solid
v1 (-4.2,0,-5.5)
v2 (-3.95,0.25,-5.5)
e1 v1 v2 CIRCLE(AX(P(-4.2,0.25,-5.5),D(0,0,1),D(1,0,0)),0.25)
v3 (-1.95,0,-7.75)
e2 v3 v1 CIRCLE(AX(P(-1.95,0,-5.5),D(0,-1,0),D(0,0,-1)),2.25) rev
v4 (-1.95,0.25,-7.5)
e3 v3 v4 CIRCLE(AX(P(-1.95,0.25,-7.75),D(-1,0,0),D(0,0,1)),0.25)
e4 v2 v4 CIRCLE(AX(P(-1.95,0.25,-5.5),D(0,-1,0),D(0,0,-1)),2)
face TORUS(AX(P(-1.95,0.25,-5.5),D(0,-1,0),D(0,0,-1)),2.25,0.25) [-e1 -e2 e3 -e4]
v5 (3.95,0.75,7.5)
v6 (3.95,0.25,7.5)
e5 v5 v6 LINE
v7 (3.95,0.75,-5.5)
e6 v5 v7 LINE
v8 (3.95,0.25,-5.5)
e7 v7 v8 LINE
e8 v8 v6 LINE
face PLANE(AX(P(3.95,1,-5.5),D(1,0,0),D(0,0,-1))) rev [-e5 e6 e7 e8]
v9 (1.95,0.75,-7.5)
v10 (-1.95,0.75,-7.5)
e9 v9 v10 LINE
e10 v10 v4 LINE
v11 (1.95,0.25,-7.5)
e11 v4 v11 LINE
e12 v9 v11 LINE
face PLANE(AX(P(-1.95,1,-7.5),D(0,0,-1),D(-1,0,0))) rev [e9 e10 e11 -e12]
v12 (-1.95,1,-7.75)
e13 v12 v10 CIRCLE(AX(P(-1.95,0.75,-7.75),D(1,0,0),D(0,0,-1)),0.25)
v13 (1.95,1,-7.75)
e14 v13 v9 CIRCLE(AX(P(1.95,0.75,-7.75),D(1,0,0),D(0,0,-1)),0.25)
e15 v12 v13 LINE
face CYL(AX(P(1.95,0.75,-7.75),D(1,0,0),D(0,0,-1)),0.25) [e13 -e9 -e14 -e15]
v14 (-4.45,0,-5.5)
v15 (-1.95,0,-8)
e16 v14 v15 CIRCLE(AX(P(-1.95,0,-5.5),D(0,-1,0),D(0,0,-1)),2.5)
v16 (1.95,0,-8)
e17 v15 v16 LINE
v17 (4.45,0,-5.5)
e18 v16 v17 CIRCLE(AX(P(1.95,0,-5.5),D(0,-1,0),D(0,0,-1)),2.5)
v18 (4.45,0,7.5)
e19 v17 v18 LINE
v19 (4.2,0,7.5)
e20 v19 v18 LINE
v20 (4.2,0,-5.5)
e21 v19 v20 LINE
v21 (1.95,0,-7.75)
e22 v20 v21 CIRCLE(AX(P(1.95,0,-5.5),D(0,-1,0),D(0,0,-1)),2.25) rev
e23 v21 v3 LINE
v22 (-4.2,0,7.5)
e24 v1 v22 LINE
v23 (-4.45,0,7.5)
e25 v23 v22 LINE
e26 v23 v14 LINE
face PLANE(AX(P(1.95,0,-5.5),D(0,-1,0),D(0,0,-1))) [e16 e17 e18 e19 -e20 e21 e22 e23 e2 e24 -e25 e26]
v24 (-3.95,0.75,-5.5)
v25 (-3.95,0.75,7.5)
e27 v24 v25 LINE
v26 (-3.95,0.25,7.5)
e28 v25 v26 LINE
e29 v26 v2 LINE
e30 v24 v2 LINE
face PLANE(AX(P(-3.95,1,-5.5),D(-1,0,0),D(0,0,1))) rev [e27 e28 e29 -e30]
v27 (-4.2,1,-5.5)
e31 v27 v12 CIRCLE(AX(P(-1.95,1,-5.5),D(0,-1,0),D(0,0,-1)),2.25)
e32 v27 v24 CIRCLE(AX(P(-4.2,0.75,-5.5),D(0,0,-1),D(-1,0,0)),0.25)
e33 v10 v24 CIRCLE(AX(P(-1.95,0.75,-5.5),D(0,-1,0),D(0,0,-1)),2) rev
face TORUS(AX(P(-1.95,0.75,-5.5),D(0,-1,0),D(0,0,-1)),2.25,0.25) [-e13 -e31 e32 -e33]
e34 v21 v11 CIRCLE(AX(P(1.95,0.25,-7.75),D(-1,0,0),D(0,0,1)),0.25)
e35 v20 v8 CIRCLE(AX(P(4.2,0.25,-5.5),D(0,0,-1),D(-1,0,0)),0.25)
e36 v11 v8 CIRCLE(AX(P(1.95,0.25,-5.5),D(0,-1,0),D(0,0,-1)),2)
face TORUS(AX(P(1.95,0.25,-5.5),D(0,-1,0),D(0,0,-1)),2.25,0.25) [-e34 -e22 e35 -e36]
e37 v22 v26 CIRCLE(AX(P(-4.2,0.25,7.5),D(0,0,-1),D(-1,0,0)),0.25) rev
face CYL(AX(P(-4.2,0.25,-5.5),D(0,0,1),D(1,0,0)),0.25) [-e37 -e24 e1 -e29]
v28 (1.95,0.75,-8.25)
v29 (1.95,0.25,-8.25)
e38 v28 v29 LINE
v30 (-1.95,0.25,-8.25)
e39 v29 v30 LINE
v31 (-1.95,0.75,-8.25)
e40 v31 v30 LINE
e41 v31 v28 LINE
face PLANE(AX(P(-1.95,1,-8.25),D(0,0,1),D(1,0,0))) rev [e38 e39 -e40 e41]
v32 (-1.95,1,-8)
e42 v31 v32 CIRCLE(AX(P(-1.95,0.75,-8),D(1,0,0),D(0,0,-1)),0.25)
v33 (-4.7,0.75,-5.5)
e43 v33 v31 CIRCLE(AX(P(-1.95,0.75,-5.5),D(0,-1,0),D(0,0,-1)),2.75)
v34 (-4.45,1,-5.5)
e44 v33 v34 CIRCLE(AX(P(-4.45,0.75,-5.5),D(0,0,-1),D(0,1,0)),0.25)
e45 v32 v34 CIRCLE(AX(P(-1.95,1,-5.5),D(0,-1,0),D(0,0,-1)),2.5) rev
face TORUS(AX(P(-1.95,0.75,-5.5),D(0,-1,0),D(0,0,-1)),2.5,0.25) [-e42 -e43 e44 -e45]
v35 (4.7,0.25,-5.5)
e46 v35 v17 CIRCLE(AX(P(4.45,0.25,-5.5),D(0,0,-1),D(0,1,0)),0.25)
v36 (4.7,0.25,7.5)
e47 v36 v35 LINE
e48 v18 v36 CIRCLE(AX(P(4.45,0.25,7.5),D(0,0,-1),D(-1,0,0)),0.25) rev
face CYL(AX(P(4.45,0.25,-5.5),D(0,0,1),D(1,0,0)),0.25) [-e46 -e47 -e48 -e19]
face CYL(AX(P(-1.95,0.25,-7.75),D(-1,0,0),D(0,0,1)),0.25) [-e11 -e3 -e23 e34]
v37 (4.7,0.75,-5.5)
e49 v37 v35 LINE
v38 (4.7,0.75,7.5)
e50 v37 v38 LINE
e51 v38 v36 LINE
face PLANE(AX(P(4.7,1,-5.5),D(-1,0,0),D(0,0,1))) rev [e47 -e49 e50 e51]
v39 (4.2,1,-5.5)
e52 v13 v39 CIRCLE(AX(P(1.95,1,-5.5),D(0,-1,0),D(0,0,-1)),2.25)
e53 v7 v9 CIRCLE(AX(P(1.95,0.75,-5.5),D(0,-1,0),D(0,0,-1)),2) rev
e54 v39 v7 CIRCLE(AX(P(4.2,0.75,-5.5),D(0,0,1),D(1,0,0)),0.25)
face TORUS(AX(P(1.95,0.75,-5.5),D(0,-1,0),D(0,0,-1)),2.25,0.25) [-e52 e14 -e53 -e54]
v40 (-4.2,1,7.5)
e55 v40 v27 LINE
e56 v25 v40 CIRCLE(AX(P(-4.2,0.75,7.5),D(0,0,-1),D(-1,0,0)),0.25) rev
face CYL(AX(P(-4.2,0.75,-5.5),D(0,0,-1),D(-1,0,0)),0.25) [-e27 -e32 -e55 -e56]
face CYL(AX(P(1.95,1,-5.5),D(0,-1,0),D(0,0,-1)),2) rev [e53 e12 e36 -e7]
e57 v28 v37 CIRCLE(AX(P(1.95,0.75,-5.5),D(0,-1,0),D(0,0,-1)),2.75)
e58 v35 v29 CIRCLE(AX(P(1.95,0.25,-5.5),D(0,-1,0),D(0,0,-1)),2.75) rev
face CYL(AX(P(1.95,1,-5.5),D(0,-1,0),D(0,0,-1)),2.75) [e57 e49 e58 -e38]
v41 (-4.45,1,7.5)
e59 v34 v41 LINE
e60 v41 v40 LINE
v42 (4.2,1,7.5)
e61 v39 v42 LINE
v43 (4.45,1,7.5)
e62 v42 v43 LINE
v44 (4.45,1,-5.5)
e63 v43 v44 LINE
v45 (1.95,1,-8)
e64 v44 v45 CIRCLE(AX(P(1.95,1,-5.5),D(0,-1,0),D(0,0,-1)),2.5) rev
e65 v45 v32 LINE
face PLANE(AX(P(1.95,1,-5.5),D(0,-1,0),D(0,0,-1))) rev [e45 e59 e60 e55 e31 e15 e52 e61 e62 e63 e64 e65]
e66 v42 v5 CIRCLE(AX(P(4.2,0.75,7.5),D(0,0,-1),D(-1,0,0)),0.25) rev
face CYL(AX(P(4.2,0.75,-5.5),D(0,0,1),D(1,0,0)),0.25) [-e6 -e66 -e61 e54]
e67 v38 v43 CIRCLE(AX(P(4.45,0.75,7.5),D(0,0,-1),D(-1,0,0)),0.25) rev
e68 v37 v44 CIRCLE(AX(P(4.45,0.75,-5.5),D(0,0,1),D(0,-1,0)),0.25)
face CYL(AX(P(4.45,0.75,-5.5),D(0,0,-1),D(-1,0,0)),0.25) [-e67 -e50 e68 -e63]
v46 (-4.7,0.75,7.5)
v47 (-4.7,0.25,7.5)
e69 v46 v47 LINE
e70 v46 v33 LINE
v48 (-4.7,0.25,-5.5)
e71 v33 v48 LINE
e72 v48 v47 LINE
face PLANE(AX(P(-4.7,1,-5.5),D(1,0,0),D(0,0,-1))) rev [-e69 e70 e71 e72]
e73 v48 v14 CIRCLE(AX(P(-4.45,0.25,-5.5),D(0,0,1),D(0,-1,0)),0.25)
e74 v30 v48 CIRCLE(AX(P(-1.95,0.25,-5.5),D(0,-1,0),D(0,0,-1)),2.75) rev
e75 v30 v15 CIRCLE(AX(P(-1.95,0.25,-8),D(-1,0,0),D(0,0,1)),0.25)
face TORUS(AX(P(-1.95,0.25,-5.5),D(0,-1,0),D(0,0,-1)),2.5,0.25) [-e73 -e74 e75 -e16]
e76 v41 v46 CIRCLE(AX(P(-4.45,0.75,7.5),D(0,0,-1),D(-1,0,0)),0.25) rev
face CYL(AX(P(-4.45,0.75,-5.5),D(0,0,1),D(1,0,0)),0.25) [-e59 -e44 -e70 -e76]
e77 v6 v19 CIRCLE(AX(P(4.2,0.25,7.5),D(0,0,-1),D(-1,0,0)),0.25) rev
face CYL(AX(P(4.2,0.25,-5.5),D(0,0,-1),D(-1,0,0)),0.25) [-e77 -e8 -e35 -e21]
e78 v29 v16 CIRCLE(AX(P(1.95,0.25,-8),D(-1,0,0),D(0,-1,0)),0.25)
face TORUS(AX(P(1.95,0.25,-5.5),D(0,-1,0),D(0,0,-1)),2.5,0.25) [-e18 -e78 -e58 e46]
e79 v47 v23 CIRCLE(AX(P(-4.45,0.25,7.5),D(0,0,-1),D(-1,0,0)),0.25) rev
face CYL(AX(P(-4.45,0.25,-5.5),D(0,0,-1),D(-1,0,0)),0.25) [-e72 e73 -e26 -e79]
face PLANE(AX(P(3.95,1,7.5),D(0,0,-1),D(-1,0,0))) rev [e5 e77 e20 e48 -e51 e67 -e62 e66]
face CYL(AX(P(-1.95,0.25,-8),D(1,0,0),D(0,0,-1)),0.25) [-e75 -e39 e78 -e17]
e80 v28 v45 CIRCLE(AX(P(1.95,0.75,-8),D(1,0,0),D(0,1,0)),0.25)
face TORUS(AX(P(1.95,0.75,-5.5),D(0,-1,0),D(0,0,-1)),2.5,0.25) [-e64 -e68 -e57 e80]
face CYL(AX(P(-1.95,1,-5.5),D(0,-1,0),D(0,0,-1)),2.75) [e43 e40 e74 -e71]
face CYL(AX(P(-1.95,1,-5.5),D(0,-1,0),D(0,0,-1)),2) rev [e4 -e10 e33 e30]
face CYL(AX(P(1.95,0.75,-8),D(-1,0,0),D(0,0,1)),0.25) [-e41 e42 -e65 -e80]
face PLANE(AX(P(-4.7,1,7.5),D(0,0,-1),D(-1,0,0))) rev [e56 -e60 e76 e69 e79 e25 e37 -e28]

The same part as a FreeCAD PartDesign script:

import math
import FreeCAD as App
import Part
import Sketcher
from FreeCAD import Vector


def edges_at(feature, points):
    """Names of the edges that pass closest to the given points."""
    edges = feature.Shape.Edges
    near = lambda p: min(range(len(edges)), key=lambda i: edges[i].distToShape(Part.Vertex(*p))[0])
    return sorted({f"Edge{near(p) + 1}" for p in points})

doc = App.newDocument("Part")
body = doc.addObject("PartDesign::Body", "Body")

sketch1 = body.newObject("Sketcher::SketchObject", "Sketch")
sketch1.AttachmentSupport = (doc.getObject("XZ_Plane"), [""])
sketch1.MapMode = "FlatFace"
sketch1.addGeometry([
    Part.LineSegment(Vector(-4.7, -5.5, 0), Vector(-4.7, 7.5, 0)),
    Part.LineSegment(Vector(-4.7, 7.5, 0), Vector(-4, 7.5, 0)),
    Part.LineSegment(Vector(-4, 7.5, 0), Vector(-4, -5.5, 0)),
    Part.ArcOfCircle(Part.Circle(Vector(-1.9, -5.5, 0), Vector(0, 0, 1), 2), math.radians(-180), math.radians(-90)),
    Part.LineSegment(Vector(-1.9, -7.5, 0), Vector(1.9, -7.5, 0)),
    Part.ArcOfCircle(Part.Circle(Vector(1.9, -5.5, 0), Vector(0, 0, 1), 2), math.radians(-90), math.radians(0)),
    Part.LineSegment(Vector(4, -5.5, 0), Vector(4, 7.5, 0)),
    Part.LineSegment(Vector(4, 7.5, 0), Vector(4.7, 7.5, 0)),
    Part.LineSegment(Vector(4.7, 7.5, 0), Vector(4.7, -5.5, 0)),
    Part.ArcOfCircle(Part.Circle(Vector(1.9, -5.5, 0), Vector(0, 0, 1), 2.8), math.radians(-90), math.radians(0)),
    Part.LineSegment(Vector(1.9, -8.2, 0), Vector(-1.9, -8.2, 0)),
    Part.ArcOfCircle(Part.Circle(Vector(-1.9, -5.5, 0), Vector(0, 0, 1), 2.8), math.radians(-180), math.radians(-90)),
], False)
sketch1.addConstraint([
    Sketcher.Constraint("Coincident", 0, 2, 1, 1),
    Sketcher.Constraint("Coincident", 1, 2, 2, 1),
    Sketcher.Constraint("Tangent", 2, 2, 3, 1),
    Sketcher.Constraint("Tangent", 3, 2, 4, 1),
    Sketcher.Constraint("Tangent", 4, 2, 5, 1),
    Sketcher.Constraint("Tangent", 5, 2, 6, 1),
    Sketcher.Constraint("Coincident", 6, 2, 7, 1),
    Sketcher.Constraint("Coincident", 7, 2, 8, 1),
    Sketcher.Constraint("Tangent", 8, 2, 9, 2),
    Sketcher.Constraint("Tangent", 9, 1, 10, 1),
    Sketcher.Constraint("Tangent", 10, 2, 11, 2),
    Sketcher.Constraint("Tangent", 11, 1, 0, 1),
    Sketcher.Constraint("Vertical", 0),
    Sketcher.Constraint("Horizontal", 1),
    Sketcher.Constraint("Vertical", 2),
    Sketcher.Constraint("Horizontal", 4),
    Sketcher.Constraint("Vertical", 6),
    Sketcher.Constraint("Horizontal", 7),
    Sketcher.Constraint("Vertical", 8),
    Sketcher.Constraint("Horizontal", 10),
    Sketcher.Constraint("Coincident", 9, 3, 5, 3),
    Sketcher.Constraint("Coincident", 11, 3, 3, 3),
    Sketcher.Constraint("Equal", 3, 5),
    Sketcher.Constraint("Symmetric", 1, 2, 6, 2, -2),
    Sketcher.Constraint("Radius", 3, 2.0),
    Sketcher.Constraint("DistanceY", 0, 1, 0, 2, 13.0),
    Sketcher.Constraint("Radius", 9, 2.75),
    Sketcher.Constraint("DistanceX", 4, 1, 4, 2, 3.9),
    Sketcher.Constraint("DistanceY", 3, 3, -1, 1, 5.5),
])
pad1 = body.newObject("PartDesign::Pad", "Pad")
pad1.Profile = sketch1
pad1.Length = 1
pad1.Reversed = True
doc.recompute()

fillet = body.newObject("PartDesign::Fillet", "Fillet")
fillet.Base = (pad1, edges_at(pad1, [
    (3.95, 0, 1),
    (3.364, 0, -6.914),
    (3.895, 1, -7.445),
    (0, 0, -7.5),
    (-3.364, 0, -6.914),
    (-3.95, 0, 1),
    (-4.7, 0, 1),
    (-3.895, 0, -7.445),
    (0, 0, -8.25),
    (3.895, 0, -7.445),
    (4.7, 0, 1),
    (0, 1, -8.25),
    (-3.895, 1, -7.445),
    (-4.7, 1, 1),
    (-3.95, 1, 1),
    (-3.364, 1, -6.914),
    (0, 1, -7.5),
    (3.364, 1, -6.914),
    (3.95, 1, 1),
    (4.7, 1, 1),
]))
fillet.Radius = 0.25

doc.recompute()
